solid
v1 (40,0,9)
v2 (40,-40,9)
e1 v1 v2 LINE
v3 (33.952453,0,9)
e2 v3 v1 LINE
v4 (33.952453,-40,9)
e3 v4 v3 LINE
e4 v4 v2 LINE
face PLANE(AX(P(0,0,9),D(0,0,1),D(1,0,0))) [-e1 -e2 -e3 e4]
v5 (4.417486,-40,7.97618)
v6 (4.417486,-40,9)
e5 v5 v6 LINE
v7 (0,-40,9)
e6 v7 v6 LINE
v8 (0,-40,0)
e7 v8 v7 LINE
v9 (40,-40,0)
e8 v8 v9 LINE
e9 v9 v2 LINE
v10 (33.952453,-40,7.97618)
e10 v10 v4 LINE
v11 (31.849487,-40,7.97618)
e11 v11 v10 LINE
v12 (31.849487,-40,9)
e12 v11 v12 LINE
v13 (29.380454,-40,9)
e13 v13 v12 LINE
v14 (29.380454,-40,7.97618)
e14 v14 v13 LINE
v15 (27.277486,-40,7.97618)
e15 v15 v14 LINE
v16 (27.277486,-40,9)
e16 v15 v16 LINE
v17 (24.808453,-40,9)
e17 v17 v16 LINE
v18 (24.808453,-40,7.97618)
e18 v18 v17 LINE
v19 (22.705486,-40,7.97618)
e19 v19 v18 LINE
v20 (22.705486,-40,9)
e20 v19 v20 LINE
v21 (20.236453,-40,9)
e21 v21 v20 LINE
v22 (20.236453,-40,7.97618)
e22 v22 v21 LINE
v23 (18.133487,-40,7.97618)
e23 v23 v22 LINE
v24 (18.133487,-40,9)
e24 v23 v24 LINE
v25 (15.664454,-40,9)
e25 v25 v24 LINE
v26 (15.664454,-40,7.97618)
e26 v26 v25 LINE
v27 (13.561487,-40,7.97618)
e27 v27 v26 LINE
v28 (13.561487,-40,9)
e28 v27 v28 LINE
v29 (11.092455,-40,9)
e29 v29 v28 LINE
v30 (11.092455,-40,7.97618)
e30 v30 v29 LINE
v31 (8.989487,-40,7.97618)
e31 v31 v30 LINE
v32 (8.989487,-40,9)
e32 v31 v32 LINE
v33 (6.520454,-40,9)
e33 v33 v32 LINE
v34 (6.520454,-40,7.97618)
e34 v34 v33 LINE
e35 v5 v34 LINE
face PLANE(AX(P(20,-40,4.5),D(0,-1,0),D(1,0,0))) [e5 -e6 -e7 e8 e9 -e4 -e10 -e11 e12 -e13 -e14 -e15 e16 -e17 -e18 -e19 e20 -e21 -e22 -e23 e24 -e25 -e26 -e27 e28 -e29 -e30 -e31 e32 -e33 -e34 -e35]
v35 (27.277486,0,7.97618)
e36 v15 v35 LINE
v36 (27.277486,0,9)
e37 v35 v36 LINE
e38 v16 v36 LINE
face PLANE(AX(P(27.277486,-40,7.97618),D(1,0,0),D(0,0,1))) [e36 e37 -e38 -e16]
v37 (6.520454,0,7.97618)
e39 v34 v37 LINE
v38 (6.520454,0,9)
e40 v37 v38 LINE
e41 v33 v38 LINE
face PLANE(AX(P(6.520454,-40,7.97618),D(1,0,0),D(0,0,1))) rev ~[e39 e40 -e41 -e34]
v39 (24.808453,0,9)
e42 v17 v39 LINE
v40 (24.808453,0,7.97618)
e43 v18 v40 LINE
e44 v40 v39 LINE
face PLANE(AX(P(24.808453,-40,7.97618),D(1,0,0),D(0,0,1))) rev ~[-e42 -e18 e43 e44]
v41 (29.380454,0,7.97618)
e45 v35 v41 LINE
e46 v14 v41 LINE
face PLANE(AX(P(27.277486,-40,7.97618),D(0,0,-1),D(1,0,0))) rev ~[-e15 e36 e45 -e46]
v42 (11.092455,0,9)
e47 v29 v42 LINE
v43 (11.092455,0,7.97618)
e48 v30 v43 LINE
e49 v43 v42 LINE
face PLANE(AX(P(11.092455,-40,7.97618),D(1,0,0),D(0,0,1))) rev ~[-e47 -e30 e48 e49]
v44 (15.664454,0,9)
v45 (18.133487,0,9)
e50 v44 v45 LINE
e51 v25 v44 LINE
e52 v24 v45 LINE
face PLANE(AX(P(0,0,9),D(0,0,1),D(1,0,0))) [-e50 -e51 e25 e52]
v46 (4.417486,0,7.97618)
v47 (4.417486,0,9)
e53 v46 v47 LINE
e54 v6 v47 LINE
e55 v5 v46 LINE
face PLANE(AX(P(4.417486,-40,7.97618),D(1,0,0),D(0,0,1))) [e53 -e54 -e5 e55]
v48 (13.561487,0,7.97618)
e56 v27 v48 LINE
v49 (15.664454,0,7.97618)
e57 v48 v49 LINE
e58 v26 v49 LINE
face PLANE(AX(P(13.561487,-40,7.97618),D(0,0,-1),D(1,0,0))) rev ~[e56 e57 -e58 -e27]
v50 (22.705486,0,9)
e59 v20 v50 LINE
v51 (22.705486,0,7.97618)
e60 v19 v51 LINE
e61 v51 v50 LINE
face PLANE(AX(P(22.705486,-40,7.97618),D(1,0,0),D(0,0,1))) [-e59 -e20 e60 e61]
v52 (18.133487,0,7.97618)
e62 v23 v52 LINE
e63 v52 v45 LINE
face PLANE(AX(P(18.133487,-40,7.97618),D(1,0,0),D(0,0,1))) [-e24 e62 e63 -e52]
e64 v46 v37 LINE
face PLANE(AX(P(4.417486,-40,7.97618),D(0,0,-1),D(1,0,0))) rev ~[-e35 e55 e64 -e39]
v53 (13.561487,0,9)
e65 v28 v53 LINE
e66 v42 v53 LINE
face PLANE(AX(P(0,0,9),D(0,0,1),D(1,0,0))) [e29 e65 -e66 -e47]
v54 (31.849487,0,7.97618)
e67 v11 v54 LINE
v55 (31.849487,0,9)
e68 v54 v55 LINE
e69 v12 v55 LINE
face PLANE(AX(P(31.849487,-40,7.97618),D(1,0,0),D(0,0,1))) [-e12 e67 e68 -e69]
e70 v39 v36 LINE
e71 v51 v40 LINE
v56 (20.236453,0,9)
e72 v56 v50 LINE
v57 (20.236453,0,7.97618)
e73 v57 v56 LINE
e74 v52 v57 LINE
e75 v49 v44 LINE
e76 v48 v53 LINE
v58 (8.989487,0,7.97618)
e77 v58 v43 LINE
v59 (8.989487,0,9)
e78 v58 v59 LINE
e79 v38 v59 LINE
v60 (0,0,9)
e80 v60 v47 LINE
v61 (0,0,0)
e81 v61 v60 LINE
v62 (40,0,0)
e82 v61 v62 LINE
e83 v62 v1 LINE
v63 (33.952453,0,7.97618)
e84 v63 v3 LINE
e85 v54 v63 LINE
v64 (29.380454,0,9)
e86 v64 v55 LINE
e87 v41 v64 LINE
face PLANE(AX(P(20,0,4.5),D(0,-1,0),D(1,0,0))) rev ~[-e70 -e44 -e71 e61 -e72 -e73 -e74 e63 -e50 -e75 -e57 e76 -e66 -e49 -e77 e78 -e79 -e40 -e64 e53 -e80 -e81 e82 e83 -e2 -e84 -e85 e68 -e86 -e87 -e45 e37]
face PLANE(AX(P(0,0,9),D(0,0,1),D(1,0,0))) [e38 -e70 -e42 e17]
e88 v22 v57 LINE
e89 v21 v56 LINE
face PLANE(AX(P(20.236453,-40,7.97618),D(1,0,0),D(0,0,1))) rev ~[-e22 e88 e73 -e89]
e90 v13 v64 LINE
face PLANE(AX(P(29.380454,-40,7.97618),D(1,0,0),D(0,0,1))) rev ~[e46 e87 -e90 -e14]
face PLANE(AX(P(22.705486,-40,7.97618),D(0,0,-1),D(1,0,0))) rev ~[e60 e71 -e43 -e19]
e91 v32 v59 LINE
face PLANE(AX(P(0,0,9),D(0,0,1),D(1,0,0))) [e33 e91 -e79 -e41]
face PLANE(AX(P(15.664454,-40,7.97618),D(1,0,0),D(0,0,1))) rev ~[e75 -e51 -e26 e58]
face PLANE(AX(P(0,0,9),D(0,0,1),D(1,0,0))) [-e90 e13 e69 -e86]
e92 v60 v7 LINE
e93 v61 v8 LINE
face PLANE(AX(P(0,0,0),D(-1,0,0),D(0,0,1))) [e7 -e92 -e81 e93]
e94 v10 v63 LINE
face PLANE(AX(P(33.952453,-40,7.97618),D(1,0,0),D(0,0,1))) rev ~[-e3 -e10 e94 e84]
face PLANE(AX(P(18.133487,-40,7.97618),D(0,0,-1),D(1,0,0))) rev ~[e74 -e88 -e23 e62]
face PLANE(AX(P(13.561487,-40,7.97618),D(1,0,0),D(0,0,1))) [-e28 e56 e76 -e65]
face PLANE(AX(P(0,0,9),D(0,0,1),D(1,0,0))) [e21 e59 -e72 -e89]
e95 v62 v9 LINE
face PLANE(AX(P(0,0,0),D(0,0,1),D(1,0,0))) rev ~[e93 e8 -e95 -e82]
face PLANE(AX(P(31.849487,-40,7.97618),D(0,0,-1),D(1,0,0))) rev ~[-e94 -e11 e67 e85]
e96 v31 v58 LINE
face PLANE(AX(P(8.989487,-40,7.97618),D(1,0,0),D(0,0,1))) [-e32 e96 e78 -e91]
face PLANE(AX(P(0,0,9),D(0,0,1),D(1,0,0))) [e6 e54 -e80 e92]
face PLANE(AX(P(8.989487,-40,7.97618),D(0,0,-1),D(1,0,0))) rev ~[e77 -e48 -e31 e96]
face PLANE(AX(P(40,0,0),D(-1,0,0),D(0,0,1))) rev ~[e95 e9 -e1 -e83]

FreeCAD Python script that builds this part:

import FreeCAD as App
import Part
import Sketcher

doc = App.newDocument("Part")
body = doc.addObject("PartDesign::Body", "Body")

# Sketch on XZ plane
sketch1 = doc.addObject("Sketcher::SketchObject", "Sketch")
body.addObject(sketch1)
sketch1.AttachmentSupport = (doc.XZ_Plane, [""])
sketch1.MapMode = "FlatFace"
sketch1.addGeometry(Part.LineSegment(App.Vector(0, 9, 0), App.Vector(0, 0, 0)), False)
sketch1.addGeometry(Part.LineSegment(App.Vector(0, 0, 0), App.Vector(40, 0, 0)), False)
sketch1.addGeometry(Part.LineSegment(App.Vector(40, 0, 0), App.Vector(40, 9, 0)), False)
sketch1.addGeometry(Part.LineSegment(App.Vector(40, 9, 0), App.Vector(0, 9, 0)), False)
sketch1.addConstraint(Sketcher.Constraint("Coincident", 0, 2, 1, 1))
sketch1.addConstraint(Sketcher.Constraint("Coincident", 1, 2, 2, 1))
sketch1.addConstraint(Sketcher.Constraint("Coincident", 2, 2, 3, 1))
sketch1.addConstraint(Sketcher.Constraint("Coincident", 3, 2, 0, 1))
sketch1.addConstraint(Sketcher.Constraint("Vertical", 0))
sketch1.addConstraint(Sketcher.Constraint("Horizontal", 1))
sketch1.addConstraint(Sketcher.Constraint("Vertical", 2))
sketch1.addConstraint(Sketcher.Constraint("Horizontal", 3))
sketch1.addConstraint(Sketcher.Constraint("Coincident", 0, 2, -1, 1))
sketch1.addConstraint(Sketcher.Constraint("DistanceX", 1, 1, 1, 2, 40.0))
sketch1.addConstraint(Sketcher.Constraint("DistanceY", 0, 2, 0, 1, 9.0))
pad1 = doc.addObject("PartDesign::Pad", "Pad")
body.addObject(pad1)
pad1.Profile = sketch1
pad1.Length = 40

# Sketch on XZ plane
sketch2 = doc.addObject("Sketcher::SketchObject", "Sketch001")
body.addObject(sketch2)
sketch2.AttachmentSupport = (doc.XZ_Plane, [""])
sketch2.MapMode = "FlatFace"
sketch2.AttachmentOffset = App.Placement(App.Vector(0, 0, 40), App.Rotation())
sketch2.addGeometry(Part.LineSegment(App.Vector(4.4, 9, 0), App.Vector(4.4, 8, 0)), False)
sketch2.addGeometry(Part.LineSegment(App.Vector(4.4, 8, 0), App.Vector(6.5, 8, 0)), False)
sketch2.addGeometry(Part.LineSegment(App.Vector(6.5, 8, 0), App.Vector(6.5, 9, 0)), False)
sketch2.addGeometry(Part.LineSegment(App.Vector(6.5, 9, 0), App.Vector(4.4, 9, 0)), False)
sketch2.addGeometry(Part.LineSegment(App.Vector(9, 9, 0), App.Vector(9, 8, 0)), False)
sketch2.addGeometry(Part.LineSegment(App.Vector(9, 8, 0), App.Vector(11.1, 8, 0)), False)
sketch2.addGeometry(Part.LineSegment(App.Vector(11.1, 8, 0), App.Vector(11.1, 9, 0)), False)
sketch2.addGeometry(Part.LineSegment(App.Vector(11.1, 9, 0), App.Vector(9, 9, 0)), False)
sketch2.addGeometry(Part.LineSegment(App.Vector(13.6, 9, 0), App.Vector(13.6, 8, 0)), False)
sketch2.addGeometry(Part.LineSegment(App.Vector(13.6, 8, 0), App.Vector(15.7, 8, 0)), False)
sketch2.addGeometry(Part.LineSegment(App.Vector(15.7, 8, 0), App.Vector(15.7, 9, 0)), False)
sketch2.addGeometry(Part.LineSegment(App.Vector(15.7, 9, 0), App.Vector(13.6, 9, 0)), False)
sketch2.addGeometry(Part.LineSegment(App.Vector(18.1, 9, 0), App.Vector(18.1, 8, 0)), False)
sketch2.addGeometry(Part.LineSegment(App.Vector(18.1, 8, 0), App.Vector(20.2, 8, 0)), False)
sketch2.addGeometry(Part.LineSegment(App.Vector(20.2, 8, 0), App.Vector(20.2, 9, 0)), False)
sketch2.addGeometry(Part.LineSegment(App.Vector(20.2, 9, 0), App.Vector(18.1, 9, 0)), False)
sketch2.addGeometry(Part.LineSegment(App.Vector(22.7, 9, 0), App.Vector(22.7, 8, 0)), False)
sketch2.addGeometry(Part.LineSegment(App.Vector(22.7, 8, 0), App.Vector(24.8, 8, 0)), False)
sketch2.addGeometry(Part.LineSegment(App.Vector(24.8, 8, 0), App.Vector(24.8, 9, 0)), False)
sketch2.addGeometry(Part.LineSegment(App.Vector(24.8, 9, 0), App.Vector(22.7, 9, 0)), False)
sketch2.addGeometry(Part.LineSegment(App.Vector(27.3, 9, 0), App.Vector(27.3, 8, 0)), False)
sketch2.addGeometry(Part.LineSegment(App.Vector(27.3, 8, 0), App.Vector(29.4, 8, 0)), False)
sketch2.addGeometry(Part.LineSegment(App.Vector(29.4, 8, 0), App.Vector(29.4, 9, 0)), False)
sketch2.addGeometry(Part.LineSegment(App.Vector(29.4, 9, 0), App.Vector(27.3, 9, 0)), False)
sketch2.addGeometry(Part.LineSegment(App.Vector(31.8, 9, 0), App.Vector(31.8, 8, 0)), False)
sketch2.addGeometry(Part.LineSegment(App.Vector(31.8, 8, 0), App.Vector(34, 8, 0)), False)
sketch2.addGeometry(Part.LineSegment(App.Vector(34, 8, 0), App.Vector(34, 9, 0)), False)
sketch2.addGeometry(Part.LineSegment(App.Vector(34, 9, 0), App.Vector(31.8, 9, 0)), False)
sketch2.addConstraint(Sketcher.Constraint("Coincident", 0, 2, 1, 1))
sketch2.addConstraint(Sketcher.Constraint("Coincident", 1, 2, 2, 1))
sketch2.addConstraint(Sketcher.Constraint("Coincident", 2, 2, 3, 1))
sketch2.addConstraint(Sketcher.Constraint("Coincident", 3, 2, 0, 1))
sketch2.addConstraint(Sketcher.Constraint("Coincident", 4, 2, 5, 1))
sketch2.addConstraint(Sketcher.Constraint("Coincident", 5, 2, 6, 1))
sketch2.addConstraint(Sketcher.Constraint("Coincident", 6, 2, 7, 1))
sketch2.addConstraint(Sketcher.Constraint("Coincident", 7, 2, 4, 1))
sketch2.addConstraint(Sketcher.Constraint("Coincident", 8, 2, 9, 1))
sketch2.addConstraint(Sketcher.Constraint("Coincident", 9, 2, 10, 1))
sketch2.addConstraint(Sketcher.Constraint("Coincident", 10, 2, 11, 1))
sketch2.addConstraint(Sketcher.Constraint("Coincident", 11, 2, 8, 1))
sketch2.addConstraint(Sketcher.Constraint("Coincident", 12, 2, 13, 1))
sketch2.addConstraint(Sketcher.Constraint("Coincident", 13, 2, 14, 1))
sketch2.addConstraint(Sketcher.Constraint("Coincident", 14, 2, 15, 1))
sketch2.addConstraint(Sketcher.Constraint("Coincident", 15, 2, 12, 1))
sketch2.addConstraint(Sketcher.Constraint("Coincident", 16, 2, 17, 1))
sketch2.addConstraint(Sketcher.Constraint("Coincident", 17, 2, 18, 1))
sketch2.addConstraint(Sketcher.Constraint("Coincident", 18, 2, 19, 1))
sketch2.addConstraint(Sketcher.Constraint("Coincident", 19, 2, 16, 1))
sketch2.addConstraint(Sketcher.Constraint("Coincident", 20, 2, 21, 1))
sketch2.addConstraint(Sketcher.Constraint("Coincident", 21, 2, 22, 1))
sketch2.addConstraint(Sketcher.Constraint("Coincident", 22, 2, 23, 1))
sketch2.addConstraint(Sketcher.Constraint("Coincident", 23, 2, 20, 1))
sketch2.addConstraint(Sketcher.Constraint("Coincident", 24, 2, 25, 1))
sketch2.addConstraint(Sketcher.Constraint("Coincident", 25, 2, 26, 1))
sketch2.addConstraint(Sketcher.Constraint("Coincident", 26, 2, 27, 1))
sketch2.addConstraint(Sketcher.Constraint("Coincident", 27, 2, 24, 1))
sketch2.addConstraint(Sketcher.Constraint("Vertical", 0))
sketch2.addConstraint(Sketcher.Constraint("Horizontal", 1))
sketch2.addConstraint(Sketcher.Constraint("Vertical", 2))
sketch2.addConstraint(Sketcher.Constraint("Horizontal", 3))
sketch2.addConstraint(Sketcher.Constraint("Vertical", 4))
sketch2.addConstraint(Sketcher.Constraint("Horizontal", 5))
sketch2.addConstraint(Sketcher.Constraint("Vertical", 6))
sketch2.addConstraint(Sketcher.Constraint("Horizontal", 7))
sketch2.addConstraint(Sketcher.Constraint("Vertical", 8))
sketch2.addConstraint(Sketcher.Constraint("Horizontal", 9))
sketch2.addConstraint(Sketcher.Constraint("Vertical", 10))
sketch2.addConstraint(Sketcher.Constraint("Horizontal", 11))
sketch2.addConstraint(Sketcher.Constraint("Vertical", 12))
sketch2.addConstraint(Sketcher.Constraint("Horizontal", 13))
sketch2.addConstraint(Sketcher.Constraint("Vertical", 14))
sketch2.addConstraint(Sketcher.Constraint("Horizontal", 15))
sketch2.addConstraint(Sketcher.Constraint("Vertical", 16))
sketch2.addConstraint(Sketcher.Constraint("Horizontal", 17))
sketch2.addConstraint(Sketcher.Constraint("Vertical", 18))
sketch2.addConstraint(Sketcher.Constraint("Horizontal", 19))
sketch2.addConstraint(Sketcher.Constraint("Vertical", 20))
sketch2.addConstraint(Sketcher.Constraint("Horizontal", 21))
sketch2.addConstraint(Sketcher.Constraint("Vertical", 22))
sketch2.addConstraint(Sketcher.Constraint("Horizontal", 23))
sketch2.addConstraint(Sketcher.Constraint("Vertical", 24))
sketch2.addConstraint(Sketcher.Constraint("Horizontal", 25))
sketch2.addConstraint(Sketcher.Constraint("Vertical", 26))
sketch2.addConstraint(Sketcher.Constraint("Horizontal", 27))
sketch2.addConstraint(Sketcher.Constraint("Horizontal", 1, 2, 4, 2))
sketch2.addConstraint(Sketcher.Constraint("Horizontal", 3, 2, 6, 2))
sketch2.addConstraint(Sketcher.Constraint("Horizontal", 5, 2, 8, 2))
sketch2.addConstraint(Sketcher.Constraint("Horizontal", 7, 2, 10, 2))
sketch2.addConstraint(Sketcher.Constraint("Horizontal", 9, 2, 12, 2))
sketch2.addConstraint(Sketcher.Constraint("Horizontal", 11, 2, 14, 2))
sketch2.addConstraint(Sketcher.Constraint("Horizontal", 13, 2, 16, 2))
sketch2.addConstraint(Sketcher.Constraint("Horizontal", 15, 2, 18, 2))
sketch2.addConstraint(Sketcher.Constraint("Horizontal", 17, 2, 20, 2))
sketch2.addConstraint(Sketcher.Constraint("Horizontal", 19, 2, 22, 2))
sketch2.addConstraint(Sketcher.Constraint("Horizontal", 21, 2, 24, 2))
sketch2.addConstraint(Sketcher.Constraint("Horizontal", 23, 2, 26, 2))
sketch2.addConstraint(Sketcher.Constraint("Equal", 3, 5))
sketch2.addConstraint(Sketcher.Constraint("Equal", 7, 9))
sketch2.addConstraint(Sketcher.Constraint("Equal", 11, 13))
sketch2.addConstraint(Sketcher.Constraint("Equal", 15, 17))
sketch2.addConstraint(Sketcher.Constraint("Equal", 19, 21))
sketch2.addConstraint(Sketcher.Constraint("Equal", 23, 25))
sketch2.addConstraint(Sketcher.Constraint("DistanceY", -1, 1, 2, 2, 9.0))
sketch2.addConstraint(Sketcher.Constraint("DistanceX", 0, 2, 4, 2, 4.572001))
sketch2.addConstraint(Sketcher.Constraint("DistanceX", 4, 2, 8, 2, 4.571999))
sketch2.addConstraint(Sketcher.Constraint("DistanceX", 8, 2, 12, 2, 4.572))
sketch2.addConstraint(Sketcher.Constraint("DistanceX", 12, 2, 16, 2, 4.572))
sketch2.addConstraint(Sketcher.Constraint("DistanceX", 16, 2, 20, 2, 4.572))
sketch2.addConstraint(Sketcher.Constraint("DistanceX", 20, 2, 24, 2, 4.572))
sketch2.addConstraint(Sketcher.Constraint("DistanceY", 0, 2, 0, 1, 1.02382))
sketch2.addConstraint(Sketcher.Constraint("DistanceX", 1, 1, 1, 2, 2.102967))
sketch2.addConstraint(Sketcher.Constraint("DistanceX", -1, 1, 0, 2, 4.417486))
pocket1 = doc.addObject("PartDesign::Pocket", "Pocket")
body.addObject(pocket1)
pocket1.Profile = sketch2
pocket1.Type = "ThroughAll"

doc.recompute()
